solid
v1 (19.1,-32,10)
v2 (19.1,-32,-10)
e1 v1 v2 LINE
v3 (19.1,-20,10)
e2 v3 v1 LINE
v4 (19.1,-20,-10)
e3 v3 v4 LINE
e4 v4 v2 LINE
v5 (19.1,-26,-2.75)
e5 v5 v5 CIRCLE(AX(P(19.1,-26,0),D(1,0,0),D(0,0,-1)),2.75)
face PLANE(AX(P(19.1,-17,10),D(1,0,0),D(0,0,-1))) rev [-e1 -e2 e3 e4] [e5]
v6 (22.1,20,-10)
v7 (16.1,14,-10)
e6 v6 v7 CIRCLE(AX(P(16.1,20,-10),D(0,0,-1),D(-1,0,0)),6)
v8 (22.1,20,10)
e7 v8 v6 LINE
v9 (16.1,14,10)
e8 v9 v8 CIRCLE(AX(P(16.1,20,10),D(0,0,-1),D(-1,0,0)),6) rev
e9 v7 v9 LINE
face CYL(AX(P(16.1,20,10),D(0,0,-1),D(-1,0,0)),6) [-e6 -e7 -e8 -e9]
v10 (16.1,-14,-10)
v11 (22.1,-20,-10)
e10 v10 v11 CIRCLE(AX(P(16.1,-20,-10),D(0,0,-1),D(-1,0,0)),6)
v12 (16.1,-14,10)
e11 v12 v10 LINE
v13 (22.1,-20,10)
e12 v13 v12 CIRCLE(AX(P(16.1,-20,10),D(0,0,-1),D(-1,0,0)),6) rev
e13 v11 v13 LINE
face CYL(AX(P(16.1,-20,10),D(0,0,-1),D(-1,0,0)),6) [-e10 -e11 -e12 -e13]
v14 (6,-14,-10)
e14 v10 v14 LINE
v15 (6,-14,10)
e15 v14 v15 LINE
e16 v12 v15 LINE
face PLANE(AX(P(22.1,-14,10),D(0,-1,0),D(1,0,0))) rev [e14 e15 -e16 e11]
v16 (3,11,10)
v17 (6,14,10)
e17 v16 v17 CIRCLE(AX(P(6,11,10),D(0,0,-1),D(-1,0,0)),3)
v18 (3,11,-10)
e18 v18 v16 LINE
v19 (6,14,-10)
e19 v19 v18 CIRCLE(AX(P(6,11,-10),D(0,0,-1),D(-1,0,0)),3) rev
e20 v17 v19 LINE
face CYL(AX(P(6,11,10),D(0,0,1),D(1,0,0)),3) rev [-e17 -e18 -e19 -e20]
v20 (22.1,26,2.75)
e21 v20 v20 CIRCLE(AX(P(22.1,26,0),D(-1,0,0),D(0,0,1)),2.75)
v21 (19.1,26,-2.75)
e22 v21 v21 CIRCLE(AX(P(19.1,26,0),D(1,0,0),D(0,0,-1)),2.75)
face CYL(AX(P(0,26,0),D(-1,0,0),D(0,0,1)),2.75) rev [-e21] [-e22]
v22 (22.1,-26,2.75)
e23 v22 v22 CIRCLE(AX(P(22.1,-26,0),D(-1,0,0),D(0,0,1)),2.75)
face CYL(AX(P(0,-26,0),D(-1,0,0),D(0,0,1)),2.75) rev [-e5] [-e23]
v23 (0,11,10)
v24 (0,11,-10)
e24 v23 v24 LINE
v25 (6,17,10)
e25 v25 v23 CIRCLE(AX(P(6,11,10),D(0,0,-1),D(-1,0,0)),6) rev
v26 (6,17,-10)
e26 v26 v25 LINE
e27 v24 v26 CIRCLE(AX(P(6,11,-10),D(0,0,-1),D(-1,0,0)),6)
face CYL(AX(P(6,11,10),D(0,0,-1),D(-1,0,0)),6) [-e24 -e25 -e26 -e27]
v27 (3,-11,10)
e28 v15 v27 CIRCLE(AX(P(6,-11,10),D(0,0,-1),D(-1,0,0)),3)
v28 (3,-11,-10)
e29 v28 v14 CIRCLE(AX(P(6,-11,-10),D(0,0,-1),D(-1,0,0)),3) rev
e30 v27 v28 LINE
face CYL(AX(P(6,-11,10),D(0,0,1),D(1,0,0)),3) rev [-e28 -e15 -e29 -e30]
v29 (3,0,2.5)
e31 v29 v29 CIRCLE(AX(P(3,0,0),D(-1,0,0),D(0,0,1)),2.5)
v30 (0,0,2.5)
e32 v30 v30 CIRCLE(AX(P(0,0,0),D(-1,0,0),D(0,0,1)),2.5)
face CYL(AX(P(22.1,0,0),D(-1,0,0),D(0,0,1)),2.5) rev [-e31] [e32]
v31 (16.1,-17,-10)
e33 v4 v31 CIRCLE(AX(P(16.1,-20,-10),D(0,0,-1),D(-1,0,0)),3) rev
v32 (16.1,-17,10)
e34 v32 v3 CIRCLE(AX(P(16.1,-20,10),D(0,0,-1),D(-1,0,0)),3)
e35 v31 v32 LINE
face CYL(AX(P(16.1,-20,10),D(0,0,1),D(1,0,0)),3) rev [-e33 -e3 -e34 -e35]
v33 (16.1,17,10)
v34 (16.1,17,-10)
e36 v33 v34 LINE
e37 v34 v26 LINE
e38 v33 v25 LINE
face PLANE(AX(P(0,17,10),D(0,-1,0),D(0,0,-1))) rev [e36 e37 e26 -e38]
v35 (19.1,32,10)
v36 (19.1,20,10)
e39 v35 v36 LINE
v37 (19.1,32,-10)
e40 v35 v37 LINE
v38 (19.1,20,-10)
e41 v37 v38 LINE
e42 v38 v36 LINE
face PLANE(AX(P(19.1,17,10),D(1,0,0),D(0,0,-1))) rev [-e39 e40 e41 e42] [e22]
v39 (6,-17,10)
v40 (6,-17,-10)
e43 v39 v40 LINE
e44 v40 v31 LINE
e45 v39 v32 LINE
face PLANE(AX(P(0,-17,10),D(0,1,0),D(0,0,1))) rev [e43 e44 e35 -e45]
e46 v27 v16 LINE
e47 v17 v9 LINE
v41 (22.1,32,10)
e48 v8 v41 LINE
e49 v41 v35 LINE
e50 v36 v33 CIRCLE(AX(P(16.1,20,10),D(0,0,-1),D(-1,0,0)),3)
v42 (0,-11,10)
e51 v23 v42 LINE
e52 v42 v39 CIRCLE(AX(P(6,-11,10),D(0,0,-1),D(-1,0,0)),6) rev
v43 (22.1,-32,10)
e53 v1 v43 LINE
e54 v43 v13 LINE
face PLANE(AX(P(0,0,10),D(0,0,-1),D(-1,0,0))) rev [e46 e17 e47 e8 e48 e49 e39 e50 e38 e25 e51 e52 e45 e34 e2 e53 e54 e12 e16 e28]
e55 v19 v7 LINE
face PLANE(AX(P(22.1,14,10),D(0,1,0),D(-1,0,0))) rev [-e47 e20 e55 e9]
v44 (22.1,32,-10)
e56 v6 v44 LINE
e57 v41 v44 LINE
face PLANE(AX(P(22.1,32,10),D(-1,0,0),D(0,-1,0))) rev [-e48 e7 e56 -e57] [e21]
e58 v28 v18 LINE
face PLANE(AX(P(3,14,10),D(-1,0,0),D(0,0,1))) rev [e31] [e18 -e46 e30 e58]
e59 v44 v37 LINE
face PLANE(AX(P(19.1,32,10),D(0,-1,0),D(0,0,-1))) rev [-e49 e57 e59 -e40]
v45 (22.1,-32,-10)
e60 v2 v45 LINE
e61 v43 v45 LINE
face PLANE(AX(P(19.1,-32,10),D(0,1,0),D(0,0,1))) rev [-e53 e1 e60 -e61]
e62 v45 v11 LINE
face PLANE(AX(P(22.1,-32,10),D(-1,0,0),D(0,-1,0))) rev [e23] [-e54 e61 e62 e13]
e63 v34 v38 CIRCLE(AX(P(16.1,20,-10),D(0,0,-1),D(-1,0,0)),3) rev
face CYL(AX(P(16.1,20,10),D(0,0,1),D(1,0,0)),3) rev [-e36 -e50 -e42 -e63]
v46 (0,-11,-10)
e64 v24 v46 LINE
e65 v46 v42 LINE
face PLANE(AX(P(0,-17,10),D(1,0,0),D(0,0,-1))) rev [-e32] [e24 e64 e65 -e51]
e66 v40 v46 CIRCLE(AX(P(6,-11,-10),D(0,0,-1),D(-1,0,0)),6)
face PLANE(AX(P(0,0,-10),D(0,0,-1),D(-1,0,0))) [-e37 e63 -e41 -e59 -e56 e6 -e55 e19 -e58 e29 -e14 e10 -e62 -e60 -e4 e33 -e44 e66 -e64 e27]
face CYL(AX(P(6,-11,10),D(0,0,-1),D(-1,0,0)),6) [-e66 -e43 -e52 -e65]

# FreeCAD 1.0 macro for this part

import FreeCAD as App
import Part
import Sketcher
from FreeCAD import Vector
Q = App.Units.Quantity


def edges_at(feature, points):
    """Names of the edges that pass closest to the given points."""
    edges = feature.Shape.Edges
    near = lambda p: min(range(len(edges)), key=lambda i: edges[i].distToShape(Part.Vertex(*p))[0])
    return sorted({f"Edge{near(p) + 1}" for p in points})

doc = App.newDocument("Part")
params = doc.addObject("Spreadsheet::Sheet", "Params")
for row, (alias, value) in enumerate([
    ("sketch1_width", "3 mm"),
    ("sketch1_height", "34 mm"),
    ("sketch1_height2", "15 mm"),
    ("sketch1_height3", "18 mm"),
    ("sketch1_width2", "19.1 mm"),
    ("pad1_length", "20 mm"),
    ("fillet_radius", "3 mm"),
    ("fillet2_radius", "6 mm"),
    ("sketch2_diameter", "5 mm"),
    ("sketch3_diameter", "5.5 mm"),
    ("hole_diameter", "5.5 mm"),
], start=1):
    params.set(f"A{row}", alias)
    params.set(f"B{row}", "=" + value)
    params.setAlias(f"B{row}", alias)

body = doc.addObject("PartDesign::Body", "Body")

# Sketch on XY plane
sketch1 = doc.addObject("Sketcher::SketchObject", "Sketch")
body.addObject(sketch1)
sketch1.AttachmentSupport = (doc.XY_Plane, [""])
sketch1.MapMode = "FlatFace"
sketch1.addGeometry([
    Part.LineSegment(Vector(0, 17, 0), Vector(0, -17, 0)),  # 0
    Part.LineSegment(Vector(0, -17, 0), Vector(19.1, -17, 0)),  # 1
    Part.LineSegment(Vector(19.1, -17, 0), Vector(19.1, -32, 0)),  # 2
    Part.LineSegment(Vector(19.1, -32, 0), Vector(22.1, -32, 0)),  # 3
    Part.LineSegment(Vector(22.1, -32, 0), Vector(22.1, -14, 0)),  # 4
    Part.LineSegment(Vector(22.1, -14, 0), Vector(3, -14, 0)),  # 5
    Part.LineSegment(Vector(3, -14, 0), Vector(3, 14, 0)),  # 6
    Part.LineSegment(Vector(3, 14, 0), Vector(22.1, 14, 0)),  # 7
    Part.LineSegment(Vector(22.1, 14, 0), Vector(22.1, 32, 0)),  # 8
    Part.LineSegment(Vector(22.1, 32, 0), Vector(19.1, 32, 0)),  # 9
    Part.LineSegment(Vector(19.1, 32, 0), Vector(19.1, 17, 0)),  # 10
    Part.LineSegment(Vector(19.1, 17, 0), Vector(0, 17, 0)),  # 11
], False)
sketch1.addConstraint([
    Sketcher.Constraint("Coincident", 0, 2, 1, 1),
    Sketcher.Constraint("Coincident", 1, 2, 2, 1),
    Sketcher.Constraint("Coincident", 2, 2, 3, 1),
    Sketcher.Constraint("Coincident", 3, 2, 4, 1),
    Sketcher.Constraint("Coincident", 4, 2, 5, 1),
    Sketcher.Constraint("Coincident", 5, 2, 6, 1),
    Sketcher.Constraint("Coincident", 6, 2, 7, 1),
    Sketcher.Constraint("Coincident", 7, 2, 8, 1),
    Sketcher.Constraint("Coincident", 8, 2, 9, 1),
    Sketcher.Constraint("Coincident", 9, 2, 10, 1),
    Sketcher.Constraint("Coincident", 10, 2, 11, 1),
    Sketcher.Constraint("Coincident", 11, 2, 0, 1),
    Sketcher.Constraint("Vertical", 0),
    Sketcher.Constraint("Horizontal", 1),
    Sketcher.Constraint("Vertical", 2),
    Sketcher.Constraint("Horizontal", 3),
    Sketcher.Constraint("Vertical", 4),
    Sketcher.Constraint("Horizontal", 5),
    Sketcher.Constraint("Vertical", 6),
    Sketcher.Constraint("Horizontal", 7),
    Sketcher.Constraint("Vertical", 8),
    Sketcher.Constraint("Horizontal", 9),
    Sketcher.Constraint("Vertical", 10),
    Sketcher.Constraint("Horizontal", 11),
    Sketcher.Constraint("Symmetric", 0, 2, 11, 2, -1, 1),
    Sketcher.Constraint("Symmetric", 4, 2, 7, 2, -1),
    Sketcher.Constraint("Symmetric", 2, 2, 9, 2, -1),
    Sketcher.Constraint("Equal", 1, 5),
    Sketcher.Constraint("DistanceX", 3, 1, 3, 2, Q("3 mm")),
    Sketcher.Constraint("DistanceY", 0, 2, 0, 1, Q("34 mm")),
    Sketcher.Constraint("DistanceY", 2, 2, 2, 1, Q("15 mm")),
    Sketcher.Constraint("DistanceY", 4, 1, 4, 2, Q("18 mm")),
    Sketcher.Constraint("DistanceX", 1, 1, 1, 2, Q("19.1 mm")),
])
sketch1.setExpression("Constraints[28]", "Params.sketch1_width")
sketch1.setExpression("Constraints[29]", "Params.sketch1_height")
sketch1.setExpression("Constraints[30]", "Params.sketch1_height2")
sketch1.setExpression("Constraints[31]", "Params.sketch1_height3")
sketch1.setExpression("Constraints[32]", "Params.sketch1_width2")
pad1 = doc.addObject("PartDesign::Pad", "Pad")
body.addObject(pad1)
pad1.Profile = sketch1
pad1.setExpression("Length", "Params.pad1_length")
pad1.Midplane = True
doc.recompute()

fillet = doc.addObject("PartDesign::Fillet", "Fillet")
body.addObject(fillet)
fillet.Base = (pad1, edges_at(pad1, [
    (3, -14, 0),
    (19.1, -17, 0),
    (19.1, 17, 0),
    (3, 14, 0),
]))
fillet.setExpression("Radius", "Params.fillet_radius")
doc.recompute()

fillet2 = doc.addObject("PartDesign::Fillet", "Fillet001")
body.addObject(fillet2)
fillet2.Base = (fillet, edges_at(fillet, [
    (22.1, -14, 0),
    (0, -17, 0),
    (0, 17, 0),
    (22.1, 14, 0),
]))
fillet2.setExpression("Radius", "Params.fillet2_radius")

# Sketch on YZ plane
sketch2 = doc.addObject("Sketcher::SketchObject", "Sketch001")
body.addObject(sketch2)
sketch2.AttachmentSupport = (doc.YZ_Plane, [""])
sketch2.MapMode = "FlatFace"
sketch2.addGeometry(Part.Circle(Vector(0, 0, 0), Vector(0, 0, 1), 2.5), False)
sketch2.addConstraint([
    Sketcher.Constraint("Coincident", 0, 3, -1, 1),
    Sketcher.Constraint("Diameter", 0, Q("5 mm")),
])
sketch2.setExpression("Constraints[1]", "Params.sketch2_diameter")
pocket1 = doc.addObject("PartDesign::Pocket", "Pocket")
body.addObject(pocket1)
pocket1.Profile = sketch2
pocket1.Type = "ThroughAll"
pocket1.Reversed = True

# Sketch on YZ plane
sketch3 = doc.addObject("Sketcher::SketchObject", "Sketch002")
body.addObject(sketch3)
sketch3.AttachmentSupport = (doc.YZ_Plane, [""])
sketch3.MapMode = "FlatFace"
sketch3.addGeometry([
    Part.Circle(Vector(26, 0, 0), Vector(0, 0, 1), 2.8),
    Part.Circle(Vector(-26, 0, 0), Vector(0, 0, 1), 2.8),
], False)
sketch3.addConstraint([
    Sketcher.Constraint("Equal", 0, 1),
    Sketcher.Constraint("Symmetric", 0, 3, 1, 3, -1, 1),
    Sketcher.Constraint("PointOnObject", 0, 3, -1),
    Sketcher.Constraint("Diameter", 0, Q("5.5 mm")),
    Sketcher.Constraint("DistanceX", -1, 1, 0, 3, Q("26 mm")),
])
sketch3.setExpression("Constraints[3]", "Params.sketch3_diameter")
doc.recompute()
hole = doc.addObject("PartDesign::Hole", "Hole")
body.addObject(hole)
hole.Profile = sketch3
hole.ThreadType = "None"
hole.setExpression("Diameter", "Params.hole_diameter")
hole.DepthType = "ThroughAll"
hole.Reversed = True

doc.recompute()
